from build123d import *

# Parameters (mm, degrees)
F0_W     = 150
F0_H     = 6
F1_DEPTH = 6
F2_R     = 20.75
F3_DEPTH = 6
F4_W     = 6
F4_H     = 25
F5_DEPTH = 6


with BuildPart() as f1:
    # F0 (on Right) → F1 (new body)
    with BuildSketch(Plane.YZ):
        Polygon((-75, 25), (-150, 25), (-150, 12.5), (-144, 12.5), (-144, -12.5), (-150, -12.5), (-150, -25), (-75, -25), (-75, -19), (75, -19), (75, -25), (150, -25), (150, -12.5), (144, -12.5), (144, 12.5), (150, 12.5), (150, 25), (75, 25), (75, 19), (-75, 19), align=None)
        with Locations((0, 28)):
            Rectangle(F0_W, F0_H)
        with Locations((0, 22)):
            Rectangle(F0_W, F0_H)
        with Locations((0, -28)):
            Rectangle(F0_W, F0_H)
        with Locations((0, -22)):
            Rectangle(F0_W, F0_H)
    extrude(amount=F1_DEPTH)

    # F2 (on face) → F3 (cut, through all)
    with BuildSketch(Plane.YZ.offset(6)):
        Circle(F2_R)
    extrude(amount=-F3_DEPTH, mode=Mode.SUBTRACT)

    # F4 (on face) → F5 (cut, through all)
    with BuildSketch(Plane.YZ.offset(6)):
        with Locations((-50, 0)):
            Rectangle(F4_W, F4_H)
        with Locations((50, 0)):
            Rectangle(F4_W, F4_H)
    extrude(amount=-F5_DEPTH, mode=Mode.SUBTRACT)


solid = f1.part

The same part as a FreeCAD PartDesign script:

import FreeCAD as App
import Part
import Sketcher
from FreeCAD import Vector
Q = App.Units.Quantity

doc = App.newDocument("Part")
body = doc.addObject("PartDesign::Body", "Body")

# Sketch on YZ plane
sketch1 = doc.addObject("Sketcher::SketchObject", "Sketch")
body.addObject(sketch1)
sketch1.AttachmentSupport = (doc.YZ_Plane, [""])
sketch1.MapMode = "FlatFace"
sketch1.addGeometry(Part.LineSegment(Vector(-75, 25, 0), Vector(-150, 25, 0)), False)
sketch1.addGeometry(Part.LineSegment(Vector(-150, 25, 0), Vector(-150, 12, 0)), False)
sketch1.addGeometry(Part.LineSegment(Vector(-150, 12, 0), Vector(-144, 12, 0)), False)
sketch1.addGeometry(Part.LineSegment(Vector(-144, 12, 0), Vector(-144, -12, 0)), False)
sketch1.addGeometry(Part.LineSegment(Vector(-144, -12, 0), Vector(-150, -12, 0)), False)
sketch1.addGeometry(Part.LineSegment(Vector(-150, -12, 0), Vector(-150, -25, 0)), False)
sketch1.addGeometry(Part.LineSegment(Vector(-150, -25, 0), Vector(-75, -25, 0)), False)
sketch1.addGeometry(Part.LineSegment(Vector(-75, -25, 0), Vector(-75, -31, 0)), False)
sketch1.addGeometry(Part.LineSegment(Vector(-75, -31, 0), Vector(75, -31, 0)), False)
sketch1.addGeometry(Part.LineSegment(Vector(75, -31, 0), Vector(75, -25, 0)), False)
sketch1.addGeometry(Part.LineSegment(Vector(75, -25, 0), Vector(150, -25, 0)), False)
sketch1.addGeometry(Part.LineSegment(Vector(150, -25, 0), Vector(150, -12, 0)), False)
sketch1.addGeometry(Part.LineSegment(Vector(150, -12, 0), Vector(144, -12, 0)), False)
sketch1.addGeometry(Part.LineSegment(Vector(144, -12, 0), Vector(144, 12, 0)), False)
sketch1.addGeometry(Part.LineSegment(Vector(144, 12, 0), Vector(150, 12, 0)), False)
sketch1.addGeometry(Part.LineSegment(Vector(150, 12, 0), Vector(150, 25, 0)), False)
sketch1.addGeometry(Part.LineSegment(Vector(150, 25, 0), Vector(75, 25, 0)), False)
sketch1.addGeometry(Part.LineSegment(Vector(75, 25, 0), Vector(75, 31, 0)), False)
sketch1.addGeometry(Part.LineSegment(Vector(75, 31, 0), Vector(-75, 31, 0)), False)
sketch1.addGeometry(Part.LineSegment(Vector(-75, 31, 0), Vector(-75, 25, 0)), False)
sketch1.addConstraint(Sketcher.Constraint("Coincident", 0, 2, 1, 1))
sketch1.addConstraint(Sketcher.Constraint("Coincident", 1, 2, 2, 1))
sketch1.addConstraint(Sketcher.Constraint("Coincident", 2, 2, 3, 1))
sketch1.addConstraint(Sketcher.Constraint("Coincident", 3, 2, 4, 1))
sketch1.addConstraint(Sketcher.Constraint("Coincident", 4, 2, 5, 1))
sketch1.addConstraint(Sketcher.Constraint("Coincident", 5, 2, 6, 1))
sketch1.addConstraint(Sketcher.Constraint("Coincident", 6, 2, 7, 1))
sketch1.addConstraint(Sketcher.Constraint("Coincident", 7, 2, 8, 1))
sketch1.addConstraint(Sketcher.Constraint("Coincident", 8, 2, 9, 1))
sketch1.addConstraint(Sketcher.Constraint("Coincident", 9, 2, 10, 1))
sketch1.addConstraint(Sketcher.Constraint("Coincident", 10, 2, 11, 1))
sketch1.addConstraint(Sketcher.Constraint("Coincident", 11, 2, 12, 1))
sketch1.addConstraint(Sketcher.Constraint("Coincident", 12, 2, 13, 1))
sketch1.addConstraint(Sketcher.Constraint("Coincident", 13, 2, 14, 1))
sketch1.addConstraint(Sketcher.Constraint("Coincident", 14, 2, 15, 1))
sketch1.addConstraint(Sketcher.Constraint("Coincident", 15, 2, 16, 1))
sketch1.addConstraint(Sketcher.Constraint("Coincident", 16, 2, 17, 1))
sketch1.addConstraint(Sketcher.Constraint("Coincident", 17, 2, 18, 1))
sketch1.addConstraint(Sketcher.Constraint("Coincident", 18, 2, 19, 1))
sketch1.addConstraint(Sketcher.Constraint("Coincident", 19, 2, 0, 1))
sketch1.addConstraint(Sketcher.Constraint("Horizontal", 0))
sketch1.addConstraint(Sketcher.Constraint("Vertical", 1))
sketch1.addConstraint(Sketcher.Constraint("Horizontal", 2))
sketch1.addConstraint(Sketcher.Constraint("Vertical", 3))
sketch1.addConstraint(Sketcher.Constraint("Horizontal", 4))
sketch1.addConstraint(Sketcher.Constraint("Vertical", 5))
sketch1.addConstraint(Sketcher.Constraint("Horizontal", 6))
sketch1.addConstraint(Sketcher.Constraint("Vertical", 7))
sketch1.addConstraint(Sketcher.Constraint("Horizontal", 8))
sketch1.addConstraint(Sketcher.Constraint("Vertical", 9))
sketch1.addConstraint(Sketcher.Constraint("Horizontal", 10))
sketch1.addConstraint(Sketcher.Constraint("Vertical", 11))
sketch1.addConstraint(Sketcher.Constraint("Horizontal", 12))
sketch1.addConstraint(Sketcher.Constraint("Vertical", 13))
sketch1.addConstraint(Sketcher.Constraint("Horizontal", 14))
sketch1.addConstraint(Sketcher.Constraint("Vertical", 15))
sketch1.addConstraint(Sketcher.Constraint("Horizontal", 16))
sketch1.addConstraint(Sketcher.Constraint("Vertical", 17))
sketch1.addConstraint(Sketcher.Constraint("Horizontal", 18))
sketch1.addConstraint(Sketcher.Constraint("Vertical", 19))
sketch1.addConstraint(Sketcher.Constraint("Symmetric", 0, 2, 10, 2, -1, 1))
sketch1.addConstraint(Sketcher.Constraint("Symmetric", 2, 2, 12, 2, -1, 1))
sketch1.addConstraint(Sketcher.Constraint("Symmetric", 4, 2, 14, 2, -1, 1))
sketch1.addConstraint(Sketcher.Constraint("Symmetric", 6, 2, 16, 2, -1, 1))
sketch1.addConstraint(Sketcher.Constraint("Symmetric", 8, 2, 18, 2, -1, 1))
sketch1.addConstraint(Sketcher.Constraint("Symmetric", 6, 2, 9, 2, -2))
sketch1.addConstraint(Sketcher.Constraint("Symmetric", 4, 2, 11, 2, -2))
sketch1.addConstraint(Sketcher.Constraint("Equal", 14, 7))
sketch1.addConstraint(Sketcher.Constraint("DistanceX", 0, 2, 0, 1, Q("75 mm")))
sketch1.addConstraint(Sketcher.Constraint("DistanceX", 2, 1, 2, 2, Q("6 mm")))
sketch1.addConstraint(Sketcher.Constraint("DistanceX", 8, 1, 8, 2, Q("150 mm")))
sketch1.addConstraint(Sketcher.Constraint("DistanceY", 3, 2, 3, 1, Q("25 mm")))
sketch1.addConstraint(Sketcher.Constraint("DistanceY", 1, 2, 1, 1, Q("12.5 mm")))
pad1 = doc.addObject("PartDesign::Pad", "Pad")
body.addObject(pad1)
pad1.Profile = sketch1
pad1.Length = 6

# Sketch on YZ plane
sketch2 = doc.addObject("Sketcher::SketchObject", "Sketch001")
body.addObject(sketch2)
sketch2.AttachmentSupport = (doc.YZ_Plane, [""])
sketch2.MapMode = "FlatFace"
sketch2.AttachmentOffset = App.Placement(Vector(0, 0, 6), App.Rotation())
sketch2.addGeometry(Part.Circle(Vector(0, 0, 0), Vector(0, 0, 1), 21), False)
sketch2.addConstraint(Sketcher.Constraint("Coincident", 0, 3, -1, 1))
sketch2.addConstraint(Sketcher.Constraint("Diameter", 0, Q("41.5 mm")))
pocket1 = doc.addObject("PartDesign::Pocket", "Pocket")
body.addObject(pocket1)
pocket1.Profile = sketch2
pocket1.Type = "ThroughAll"

# Sketch on YZ plane
sketch3 = doc.addObject("Sketcher::SketchObject", "Sketch002")
body.addObject(sketch3)
sketch3.AttachmentSupport = (doc.YZ_Plane, [""])
sketch3.MapMode = "FlatFace"
sketch3.AttachmentOffset = App.Placement(Vector(0, 0, 6), App.Rotation())
sketch3.addGeometry(Part.LineSegment(Vector(-53, 12, 0), Vector(-53, -12, 0)), False)
sketch3.addGeometry(Part.LineSegment(Vector(-53, -12, 0), Vector(-47, -12, 0)), False)
sketch3.addGeometry(Part.LineSegment(Vector(-47, -12, 0), Vector(-47, 12, 0)), False)
sketch3.addGeometry(Part.LineSegment(Vector(-47, 12, 0), Vector(-53, 12, 0)), False)
sketch3.addGeometry(Part.LineSegment(Vector(47, 12, 0), Vector(47, -12, 0)), False)
sketch3.addGeometry(Part.LineSegment(Vector(47, -12, 0), Vector(53, -12, 0)), False)
sketch3.addGeometry(Part.LineSegment(Vector(53, -12, 0), Vector(53, 12, 0)), False)
sketch3.addGeometry(Part.LineSegment(Vector(53, 12, 0), Vector(47, 12, 0)), False)
sketch3.addConstraint(Sketcher.Constraint("Coincident", 0, 2, 1, 1))
sketch3.addConstraint(Sketcher.Constraint("Coincident", 1, 2, 2, 1))
sketch3.addConstraint(Sketcher.Constraint("Coincident", 2, 2, 3, 1))
sketch3.addConstraint(Sketcher.Constraint("Coincident", 3, 2, 0, 1))
sketch3.addConstraint(Sketcher.Constraint("Coincident", 4, 2, 5, 1))
sketch3.addConstraint(Sketcher.Constraint("Coincident", 5, 2, 6, 1))
sketch3.addConstraint(Sketcher.Constraint("Coincident", 6, 2, 7, 1))
sketch3.addConstraint(Sketcher.Constraint("Coincident", 7, 2, 4, 1))
sketch3.addConstraint(Sketcher.Constraint("Vertical", 0))
sketch3.addConstraint(Sketcher.Constraint("Horizontal", 1))
sketch3.addConstraint(Sketcher.Constraint("Vertical", 2))
sketch3.addConstraint(Sketcher.Constraint("Horizontal", 3))
sketch3.addConstraint(Sketcher.Constraint("Vertical", 4))
sketch3.addConstraint(Sketcher.Constraint("Horizontal", 5))
sketch3.addConstraint(Sketcher.Constraint("Vertical", 6))
sketch3.addConstraint(Sketcher.Constraint("Horizontal", 7))
sketch3.addConstraint(Sketcher.Constraint("Symmetric", 2, 2, 4, 2, -1, 1))
sketch3.addConstraint(Sketcher.Constraint("Symmetric", 0, 2, 6, 2, -1, 1))
sketch3.addConstraint(Sketcher.Constraint("Horizontal", 1, 2, 4, 2))
sketch3.addConstraint(Sketcher.Constraint("DistanceX", 1, 1, 1, 2, Q("6 mm")))
sketch3.addConstraint(Sketcher.Constraint("DistanceY", 0, 2, 0, 1, Q("25 mm")))
sketch3.addConstraint(Sketcher.Constraint("DistanceX", 0, 2, -1, 1, Q("53 mm")))
pocket2 = doc.addObject("PartDesign::Pocket", "Pocket001")
body.addObject(pocket2)
pocket2.Profile = sketch3
pocket2.Type = "ThroughAll"

doc.recompute()
